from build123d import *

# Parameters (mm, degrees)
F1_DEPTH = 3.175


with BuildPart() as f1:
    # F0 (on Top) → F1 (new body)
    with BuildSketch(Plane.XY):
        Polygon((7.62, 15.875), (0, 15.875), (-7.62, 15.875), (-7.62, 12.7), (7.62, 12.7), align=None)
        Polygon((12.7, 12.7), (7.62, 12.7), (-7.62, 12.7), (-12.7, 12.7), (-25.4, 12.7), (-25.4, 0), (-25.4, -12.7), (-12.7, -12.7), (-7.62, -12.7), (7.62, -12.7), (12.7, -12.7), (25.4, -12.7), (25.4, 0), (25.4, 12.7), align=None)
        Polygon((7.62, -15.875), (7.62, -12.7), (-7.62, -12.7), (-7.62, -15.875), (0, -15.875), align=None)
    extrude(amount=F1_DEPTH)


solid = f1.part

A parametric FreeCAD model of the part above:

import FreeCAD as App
import Part
import Sketcher
Q = App.Units.Quantity

doc = App.newDocument("Part")
body = doc.addObject("PartDesign::Body", "Body")

sketch1 = body.newObject("Sketcher::SketchObject", "Sketch")
sketch1.AttachmentSupport = (doc.getObject("XY_Plane"), [""])
sketch1.MapMode = "FlatFace"
sketch1.addGeometry([
    Part.LineSegment(App.Vector(7.6, 15.9, 0), App.Vector(-7.6, 15.9, 0)),
    Part.LineSegment(App.Vector(-7.6, 15.9, 0), App.Vector(-7.6, 12.7, 0)),
    Part.LineSegment(App.Vector(-7.6, 12.7, 0), App.Vector(-25.4, 12.7, 0)),
    Part.LineSegment(App.Vector(-25.4, 12.7, 0), App.Vector(-25.4, -12.7, 0)),
    Part.LineSegment(App.Vector(-25.4, -12.7, 0), App.Vector(-7.6, -12.7, 0)),
    Part.LineSegment(App.Vector(-7.6, -12.7, 0), App.Vector(-7.6, -15.9, 0)),
    Part.LineSegment(App.Vector(-7.6, -15.9, 0), App.Vector(7.6, -15.9, 0)),
    Part.LineSegment(App.Vector(7.6, -15.9, 0), App.Vector(7.6, -12.7, 0)),
    Part.LineSegment(App.Vector(7.6, -12.7, 0), App.Vector(25.4, -12.7, 0)),
    Part.LineSegment(App.Vector(25.4, -12.7, 0), App.Vector(25.4, 12.7, 0)),
    Part.LineSegment(App.Vector(25.4, 12.7, 0), App.Vector(7.6, 12.7, 0)),
    Part.LineSegment(App.Vector(7.6, 12.7, 0), App.Vector(7.6, 15.9, 0)),
], False)
sketch1.addConstraint([
    Sketcher.Constraint("Coincident", 0, 2, 1, 1),
    Sketcher.Constraint("Coincident", 1, 2, 2, 1),
    Sketcher.Constraint("Coincident", 2, 2, 3, 1),
    Sketcher.Constraint("Coincident", 3, 2, 4, 1),
    Sketcher.Constraint("Coincident", 4, 2, 5, 1),
    Sketcher.Constraint("Coincident", 5, 2, 6, 1),
    Sketcher.Constraint("Coincident", 6, 2, 7, 1),
    Sketcher.Constraint("Coincident", 7, 2, 8, 1),
    Sketcher.Constraint("Coincident", 8, 2, 9, 1),
    Sketcher.Constraint("Coincident", 9, 2, 10, 1),
    Sketcher.Constraint("Coincident", 10, 2, 11, 1),
    Sketcher.Constraint("Coincident", 11, 2, 0, 1),
    Sketcher.Constraint("Horizontal", 0),
    Sketcher.Constraint("Vertical", 1),
    Sketcher.Constraint("Horizontal", 2),
    Sketcher.Constraint("Vertical", 3),
    Sketcher.Constraint("Horizontal", 4),
    Sketcher.Constraint("Vertical", 5),
    Sketcher.Constraint("Horizontal", 6),
    Sketcher.Constraint("Vertical", 7),
    Sketcher.Constraint("Horizontal", 8),
    Sketcher.Constraint("Vertical", 9),
    Sketcher.Constraint("Horizontal", 10),
    Sketcher.Constraint("Vertical", 11),
    Sketcher.Constraint("Symmetric", 0, 2, 6, 2, -1, 1),
    Sketcher.Constraint("Symmetric", 2, 2, 8, 2, -1, 1),
    Sketcher.Constraint("Symmetric", 4, 2, 10, 2, -1, 1),
    Sketcher.Constraint("Symmetric", 4, 2, 7, 2, -2),
    Sketcher.Constraint("DistanceY", 3, 2, 3, 1, Q("1 in")),
    Sketcher.Constraint("DistanceX", 0, 2, 0, 1, Q("0.6 in")),
    Sketcher.Constraint("DistanceX", 2, 2, 2, 1, Q("0.7 in")),
    Sketcher.Constraint("DistanceY", 1, 2, 1, 1, Q("0.125 in")),
])
pad1 = body.newObject("PartDesign::Pad", "Pad")
pad1.Profile = sketch1
pad1.Length = Q("0.125 in")

doc.recompute()
